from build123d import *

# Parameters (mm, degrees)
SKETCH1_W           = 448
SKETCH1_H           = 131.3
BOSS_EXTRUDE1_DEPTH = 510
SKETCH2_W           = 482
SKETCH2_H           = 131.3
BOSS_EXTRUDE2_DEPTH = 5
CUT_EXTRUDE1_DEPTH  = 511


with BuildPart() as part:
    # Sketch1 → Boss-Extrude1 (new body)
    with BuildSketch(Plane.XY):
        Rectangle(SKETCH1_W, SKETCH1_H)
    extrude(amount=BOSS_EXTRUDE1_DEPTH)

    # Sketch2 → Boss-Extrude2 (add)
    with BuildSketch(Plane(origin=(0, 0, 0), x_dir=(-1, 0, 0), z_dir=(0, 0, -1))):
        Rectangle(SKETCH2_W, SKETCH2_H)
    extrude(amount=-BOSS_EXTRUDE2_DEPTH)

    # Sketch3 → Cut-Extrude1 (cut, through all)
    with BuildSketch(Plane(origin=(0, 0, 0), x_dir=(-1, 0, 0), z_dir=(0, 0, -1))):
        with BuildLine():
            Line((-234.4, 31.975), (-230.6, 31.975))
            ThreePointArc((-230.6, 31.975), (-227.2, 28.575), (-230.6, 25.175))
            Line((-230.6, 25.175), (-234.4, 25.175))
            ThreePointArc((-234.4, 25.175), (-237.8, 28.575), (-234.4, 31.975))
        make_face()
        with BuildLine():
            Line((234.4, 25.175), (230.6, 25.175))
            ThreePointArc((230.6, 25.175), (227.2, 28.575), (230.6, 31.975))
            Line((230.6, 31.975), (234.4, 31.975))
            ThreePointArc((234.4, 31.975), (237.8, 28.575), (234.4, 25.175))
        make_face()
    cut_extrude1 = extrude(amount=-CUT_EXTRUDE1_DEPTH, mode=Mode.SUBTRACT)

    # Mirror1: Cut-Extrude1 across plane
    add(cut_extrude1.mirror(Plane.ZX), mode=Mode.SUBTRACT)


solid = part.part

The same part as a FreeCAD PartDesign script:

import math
import FreeCAD as App
import Part
import Sketcher
Q = App.Units.Quantity


def add_polygon(sketch, points):
    """Adds a closed chain of lines whose ends are joined by coincident constraints."""
    first, n = sketch.GeometryCount, len(points)
    for a, b in zip(points, points[1:] + points[:1]):
        sketch.addGeometry(Part.LineSegment(App.Vector(*a, 0), App.Vector(*b, 0)), False)
    for i in range(n):
        sketch.addConstraint(Sketcher.Constraint("Coincident", first + i, 2, first + (i + 1) % n, 1))

doc = App.newDocument("Part")
body = doc.addObject("PartDesign::Body", "Body")

sketch1 = body.newObject("Sketcher::SketchObject", "Sketch")
sketch1.AttachmentSupport = (doc.getObject("XY_Plane"), [""])
sketch1.MapMode = "FlatFace"
add_polygon(sketch1, [(-224, 65.65), (-224, -65.65), (224, -65.65), (224, 65.65)])
sketch1.addConstraint(Sketcher.Constraint("Vertical", 0))
sketch1.addConstraint(Sketcher.Constraint("Horizontal", 1))
sketch1.addConstraint(Sketcher.Constraint("Vertical", 2))
sketch1.addConstraint(Sketcher.Constraint("Horizontal", 3))
sketch1.addConstraint(Sketcher.Constraint("Symmetric", 0, 2, 2, 2, -1, 1))
sketch1.addConstraint(Sketcher.Constraint("DistanceX", 1, 1, 1, 2, Q("448 mm")))
sketch1.addConstraint(Sketcher.Constraint("DistanceY", 0, 2, 0, 1, Q("131.3 mm")))
pad1 = body.newObject("PartDesign::Pad", "Pad")
pad1.Profile = sketch1
pad1.Length = 510

sketch2 = body.newObject("Sketcher::SketchObject", "Sketch001")
sketch2.AttachmentSupport = (doc.getObject("XY_Plane"), [""])
sketch2.MapMode = "FlatFace"
add_polygon(sketch2, [(241, 65.65), (241, -65.65), (-241, -65.65), (-241, 65.65)])
sketch2.addConstraint(Sketcher.Constraint("Vertical", 0))
sketch2.addConstraint(Sketcher.Constraint("Horizontal", 1))
sketch2.addConstraint(Sketcher.Constraint("Vertical", 2))
sketch2.addConstraint(Sketcher.Constraint("Horizontal", 3))
sketch2.addConstraint(Sketcher.Constraint("Symmetric", 0, 2, 2, 2, -1, 1))
sketch2.addConstraint(Sketcher.Constraint("DistanceX", 1, 2, 1, 1, Q("482 mm")))
sketch2.addConstraint(Sketcher.Constraint("DistanceY", 0, 2, 0, 1, Q("131.3 mm")))
pad2 = body.newObject("PartDesign::Pad", "Pad001")
pad2.Profile = sketch2
pad2.Length = 5

sketch3 = body.newObject("Sketcher::SketchObject", "Sketch002")
sketch3.AttachmentSupport = (doc.getObject("XY_Plane"), [""])
sketch3.MapMode = "FlatFace"
sketch3.addGeometry(Part.LineSegment(App.Vector(230.6, 31.975, 0), App.Vector(234.4, 31.975, 0)), False)
sketch3.addGeometry(Part.ArcOfCircle(Part.Circle(App.Vector(234.4, 28.575, 0), App.Vector(0, 0, 1), 3.4), math.radians(-90), math.radians(90)), False)
sketch3.addGeometry(Part.LineSegment(App.Vector(234.4, 25.175, 0), App.Vector(230.6, 25.175, 0)), False)
sketch3.addGeometry(Part.ArcOfCircle(Part.Circle(App.Vector(230.6, 28.575, 0), App.Vector(0, 0, 1), 3.4), math.radians(90), math.radians(270)), False)
sketch3.addGeometry(Part.LineSegment(App.Vector(-230.6, 25.175, 0), App.Vector(-234.4, 25.175, 0)), False)
sketch3.addGeometry(Part.ArcOfCircle(Part.Circle(App.Vector(-234.4, 28.575, 0), App.Vector(0, 0, 1), 3.4), math.radians(90), math.radians(270)), False)
sketch3.addGeometry(Part.LineSegment(App.Vector(-234.4, 31.975, 0), App.Vector(-230.6, 31.975, 0)), False)
sketch3.addGeometry(Part.ArcOfCircle(Part.Circle(App.Vector(-230.6, 28.575, 0), App.Vector(0, 0, 1), 3.4), math.radians(-90), math.radians(90)), False)
sketch3.addConstraint(Sketcher.Constraint("Tangent", 0, 2, 1, 2))
sketch3.addConstraint(Sketcher.Constraint("Tangent", 1, 1, 2, 1))
sketch3.addConstraint(Sketcher.Constraint("Tangent", 2, 2, 3, 2))
sketch3.addConstraint(Sketcher.Constraint("Tangent", 3, 1, 0, 1))
sketch3.addConstraint(Sketcher.Constraint("Tangent", 4, 2, 5, 2))
sketch3.addConstraint(Sketcher.Constraint("Tangent", 5, 1, 6, 1))
sketch3.addConstraint(Sketcher.Constraint("Tangent", 6, 2, 7, 2))
sketch3.addConstraint(Sketcher.Constraint("Tangent", 7, 1, 4, 1))
sketch3.addConstraint(Sketcher.Constraint("Horizontal", 0))
sketch3.addConstraint(Sketcher.Constraint("Horizontal", 2))
sketch3.addConstraint(Sketcher.Constraint("Horizontal", 4))
sketch3.addConstraint(Sketcher.Constraint("Horizontal", 6))
sketch3.addConstraint(Sketcher.Constraint("Equal", 3, 5))
sketch3.addConstraint(Sketcher.Constraint("Symmetric", 1, 3, 5, 3, -2))
sketch3.addConstraint(Sketcher.Constraint("Equal", 2, 4))
sketch3.addConstraint(Sketcher.Constraint("Radius", 1, Q("3.4 mm")))
sketch3.addConstraint(Sketcher.Constraint("DistanceX", 0, 1, 0, 2, Q("3.8 mm")))
sketch3.addConstraint(Sketcher.Constraint("DistanceX", 5, 3, 3, 3, Q("465 mm")))
sketch3.addConstraint(Sketcher.Constraint("DistanceY", -1, 1, 1, 3, Q("28.575 mm")))
pocket1 = body.newObject("PartDesign::Pocket", "Pocket")
pocket1.Profile = sketch3
pocket1.Type = "ThroughAll"
pocket1.Reversed = True
doc.recompute()

mirrored = body.newObject("PartDesign::Mirrored", "Mirrored")
mirrored.Originals = [pocket1]
mirrored.MirrorPlane = (doc.getObject("XZ_Plane"), [""])
body.Tip = mirrored

doc.recompute()
